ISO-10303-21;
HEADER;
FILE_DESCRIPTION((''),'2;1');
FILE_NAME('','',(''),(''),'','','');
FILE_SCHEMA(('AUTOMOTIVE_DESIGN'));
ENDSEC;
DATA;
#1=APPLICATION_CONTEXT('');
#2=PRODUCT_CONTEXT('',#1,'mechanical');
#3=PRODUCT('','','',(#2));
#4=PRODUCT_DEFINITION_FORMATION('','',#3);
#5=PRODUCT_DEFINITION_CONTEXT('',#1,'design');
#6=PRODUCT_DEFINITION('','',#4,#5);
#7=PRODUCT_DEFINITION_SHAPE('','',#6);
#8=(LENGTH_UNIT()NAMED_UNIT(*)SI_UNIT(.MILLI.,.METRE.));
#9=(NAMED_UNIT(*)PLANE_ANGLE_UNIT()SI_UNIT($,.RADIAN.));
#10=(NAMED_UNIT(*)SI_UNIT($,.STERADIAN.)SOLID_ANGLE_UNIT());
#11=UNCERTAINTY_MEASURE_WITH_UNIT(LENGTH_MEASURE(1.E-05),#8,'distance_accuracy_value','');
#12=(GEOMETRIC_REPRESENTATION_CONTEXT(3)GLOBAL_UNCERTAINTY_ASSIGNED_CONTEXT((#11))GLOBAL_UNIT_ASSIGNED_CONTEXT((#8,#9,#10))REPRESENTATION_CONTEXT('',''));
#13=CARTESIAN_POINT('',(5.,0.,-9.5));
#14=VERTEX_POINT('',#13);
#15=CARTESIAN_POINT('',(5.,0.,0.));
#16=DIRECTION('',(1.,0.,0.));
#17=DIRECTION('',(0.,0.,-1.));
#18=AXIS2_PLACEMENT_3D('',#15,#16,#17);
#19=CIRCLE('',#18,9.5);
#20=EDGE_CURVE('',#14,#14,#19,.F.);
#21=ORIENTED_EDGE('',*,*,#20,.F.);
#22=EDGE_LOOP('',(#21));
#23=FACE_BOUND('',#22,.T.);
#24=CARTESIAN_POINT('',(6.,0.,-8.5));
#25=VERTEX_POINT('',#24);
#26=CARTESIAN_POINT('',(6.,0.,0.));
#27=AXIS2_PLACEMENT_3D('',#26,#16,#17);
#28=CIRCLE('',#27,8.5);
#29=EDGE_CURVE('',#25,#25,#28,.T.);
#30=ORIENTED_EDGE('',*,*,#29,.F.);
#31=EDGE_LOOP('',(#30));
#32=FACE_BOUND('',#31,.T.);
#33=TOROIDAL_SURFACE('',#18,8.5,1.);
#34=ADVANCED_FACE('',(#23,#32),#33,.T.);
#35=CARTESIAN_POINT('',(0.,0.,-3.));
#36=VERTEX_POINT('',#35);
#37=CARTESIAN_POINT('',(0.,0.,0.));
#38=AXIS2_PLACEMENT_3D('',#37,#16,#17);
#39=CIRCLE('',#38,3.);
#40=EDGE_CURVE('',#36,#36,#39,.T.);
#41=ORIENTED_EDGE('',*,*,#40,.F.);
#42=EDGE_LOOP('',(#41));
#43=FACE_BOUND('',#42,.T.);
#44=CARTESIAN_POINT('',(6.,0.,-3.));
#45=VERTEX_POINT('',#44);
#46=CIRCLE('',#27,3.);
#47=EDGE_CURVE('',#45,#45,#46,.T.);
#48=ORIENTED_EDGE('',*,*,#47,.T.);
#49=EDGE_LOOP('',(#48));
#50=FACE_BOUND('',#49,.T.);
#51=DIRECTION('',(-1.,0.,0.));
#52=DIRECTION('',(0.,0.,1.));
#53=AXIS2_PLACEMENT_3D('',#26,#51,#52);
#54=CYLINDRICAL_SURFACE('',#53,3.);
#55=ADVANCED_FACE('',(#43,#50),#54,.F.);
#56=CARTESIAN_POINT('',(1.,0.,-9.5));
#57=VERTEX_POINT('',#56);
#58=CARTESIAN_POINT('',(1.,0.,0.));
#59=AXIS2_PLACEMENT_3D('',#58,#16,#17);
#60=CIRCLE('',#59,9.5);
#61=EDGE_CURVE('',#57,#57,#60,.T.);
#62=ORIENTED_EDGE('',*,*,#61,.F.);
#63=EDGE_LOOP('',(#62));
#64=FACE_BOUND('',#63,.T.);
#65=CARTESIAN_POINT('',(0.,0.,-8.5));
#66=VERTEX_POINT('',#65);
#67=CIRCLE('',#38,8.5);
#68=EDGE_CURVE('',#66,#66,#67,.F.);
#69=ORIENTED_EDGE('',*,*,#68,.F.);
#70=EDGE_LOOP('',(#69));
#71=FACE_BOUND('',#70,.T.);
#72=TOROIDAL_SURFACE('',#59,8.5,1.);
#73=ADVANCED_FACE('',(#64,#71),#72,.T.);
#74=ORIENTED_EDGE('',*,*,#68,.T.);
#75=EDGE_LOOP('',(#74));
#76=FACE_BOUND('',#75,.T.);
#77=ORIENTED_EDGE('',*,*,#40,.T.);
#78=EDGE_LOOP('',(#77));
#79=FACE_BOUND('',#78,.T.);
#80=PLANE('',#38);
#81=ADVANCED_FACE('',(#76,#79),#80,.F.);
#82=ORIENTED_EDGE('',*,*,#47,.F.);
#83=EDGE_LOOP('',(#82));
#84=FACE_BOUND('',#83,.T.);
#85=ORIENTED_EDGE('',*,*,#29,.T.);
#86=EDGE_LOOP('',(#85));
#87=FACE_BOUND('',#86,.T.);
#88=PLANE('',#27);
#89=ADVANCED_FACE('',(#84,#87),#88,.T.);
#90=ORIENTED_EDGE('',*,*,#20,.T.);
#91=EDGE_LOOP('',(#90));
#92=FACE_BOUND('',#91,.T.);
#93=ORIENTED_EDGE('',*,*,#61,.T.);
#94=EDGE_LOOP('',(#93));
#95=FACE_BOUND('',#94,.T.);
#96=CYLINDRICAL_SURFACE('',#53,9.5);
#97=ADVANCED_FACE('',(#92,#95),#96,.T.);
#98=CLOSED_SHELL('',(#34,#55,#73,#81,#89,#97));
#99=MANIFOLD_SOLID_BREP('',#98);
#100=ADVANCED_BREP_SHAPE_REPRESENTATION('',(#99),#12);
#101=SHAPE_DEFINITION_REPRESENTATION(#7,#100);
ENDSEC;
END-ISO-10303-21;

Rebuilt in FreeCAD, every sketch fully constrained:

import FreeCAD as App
import Part
import Sketcher
from FreeCAD import Vector
Q = App.Units.Quantity


def edges_at(feature, points):
    """Names of the edges that pass closest to the given points."""
    edges = feature.Shape.Edges
    near = lambda p: min(range(len(edges)), key=lambda i: edges[i].distToShape(Part.Vertex(*p))[0])
    return sorted({f"Edge{near(p) + 1}" for p in points})

doc = App.newDocument("Part")
body = doc.addObject("PartDesign::Body", "Body")

# Sketch on YZ plane
sketch1 = doc.addObject("Sketcher::SketchObject", "Sketch")
body.addObject(sketch1)
sketch1.AttachmentSupport = (doc.YZ_Plane, [""])
sketch1.MapMode = "FlatFace"
sketch1.addGeometry([
    Part.Circle(Vector(0, 0, 0), Vector(0, 0, 1), 9.5),
    Part.Circle(Vector(0, 0, 0), Vector(0, 0, 1), 3),
], False)
sketch1.addConstraint([
    Sketcher.Constraint("Coincident", 0, 3, -1, 1),
    Sketcher.Constraint("Coincident", 1, 3, -1, 1),
    Sketcher.Constraint("Diameter", 0, Q("19 mm")),
    Sketcher.Constraint("Diameter", 1, Q("6 mm")),
])
pad1 = doc.addObject("PartDesign::Pad", "Pad")
body.addObject(pad1)
pad1.Profile = sketch1
pad1.Length = 6
doc.recompute()

fillet = doc.addObject("PartDesign::Fillet", "Fillet")
body.addObject(fillet)
fillet.Base = (pad1, edges_at(pad1, [(0, 0, 9.5), (6, 0, 9.5)]))
fillet.Radius = 1

doc.recompute()
